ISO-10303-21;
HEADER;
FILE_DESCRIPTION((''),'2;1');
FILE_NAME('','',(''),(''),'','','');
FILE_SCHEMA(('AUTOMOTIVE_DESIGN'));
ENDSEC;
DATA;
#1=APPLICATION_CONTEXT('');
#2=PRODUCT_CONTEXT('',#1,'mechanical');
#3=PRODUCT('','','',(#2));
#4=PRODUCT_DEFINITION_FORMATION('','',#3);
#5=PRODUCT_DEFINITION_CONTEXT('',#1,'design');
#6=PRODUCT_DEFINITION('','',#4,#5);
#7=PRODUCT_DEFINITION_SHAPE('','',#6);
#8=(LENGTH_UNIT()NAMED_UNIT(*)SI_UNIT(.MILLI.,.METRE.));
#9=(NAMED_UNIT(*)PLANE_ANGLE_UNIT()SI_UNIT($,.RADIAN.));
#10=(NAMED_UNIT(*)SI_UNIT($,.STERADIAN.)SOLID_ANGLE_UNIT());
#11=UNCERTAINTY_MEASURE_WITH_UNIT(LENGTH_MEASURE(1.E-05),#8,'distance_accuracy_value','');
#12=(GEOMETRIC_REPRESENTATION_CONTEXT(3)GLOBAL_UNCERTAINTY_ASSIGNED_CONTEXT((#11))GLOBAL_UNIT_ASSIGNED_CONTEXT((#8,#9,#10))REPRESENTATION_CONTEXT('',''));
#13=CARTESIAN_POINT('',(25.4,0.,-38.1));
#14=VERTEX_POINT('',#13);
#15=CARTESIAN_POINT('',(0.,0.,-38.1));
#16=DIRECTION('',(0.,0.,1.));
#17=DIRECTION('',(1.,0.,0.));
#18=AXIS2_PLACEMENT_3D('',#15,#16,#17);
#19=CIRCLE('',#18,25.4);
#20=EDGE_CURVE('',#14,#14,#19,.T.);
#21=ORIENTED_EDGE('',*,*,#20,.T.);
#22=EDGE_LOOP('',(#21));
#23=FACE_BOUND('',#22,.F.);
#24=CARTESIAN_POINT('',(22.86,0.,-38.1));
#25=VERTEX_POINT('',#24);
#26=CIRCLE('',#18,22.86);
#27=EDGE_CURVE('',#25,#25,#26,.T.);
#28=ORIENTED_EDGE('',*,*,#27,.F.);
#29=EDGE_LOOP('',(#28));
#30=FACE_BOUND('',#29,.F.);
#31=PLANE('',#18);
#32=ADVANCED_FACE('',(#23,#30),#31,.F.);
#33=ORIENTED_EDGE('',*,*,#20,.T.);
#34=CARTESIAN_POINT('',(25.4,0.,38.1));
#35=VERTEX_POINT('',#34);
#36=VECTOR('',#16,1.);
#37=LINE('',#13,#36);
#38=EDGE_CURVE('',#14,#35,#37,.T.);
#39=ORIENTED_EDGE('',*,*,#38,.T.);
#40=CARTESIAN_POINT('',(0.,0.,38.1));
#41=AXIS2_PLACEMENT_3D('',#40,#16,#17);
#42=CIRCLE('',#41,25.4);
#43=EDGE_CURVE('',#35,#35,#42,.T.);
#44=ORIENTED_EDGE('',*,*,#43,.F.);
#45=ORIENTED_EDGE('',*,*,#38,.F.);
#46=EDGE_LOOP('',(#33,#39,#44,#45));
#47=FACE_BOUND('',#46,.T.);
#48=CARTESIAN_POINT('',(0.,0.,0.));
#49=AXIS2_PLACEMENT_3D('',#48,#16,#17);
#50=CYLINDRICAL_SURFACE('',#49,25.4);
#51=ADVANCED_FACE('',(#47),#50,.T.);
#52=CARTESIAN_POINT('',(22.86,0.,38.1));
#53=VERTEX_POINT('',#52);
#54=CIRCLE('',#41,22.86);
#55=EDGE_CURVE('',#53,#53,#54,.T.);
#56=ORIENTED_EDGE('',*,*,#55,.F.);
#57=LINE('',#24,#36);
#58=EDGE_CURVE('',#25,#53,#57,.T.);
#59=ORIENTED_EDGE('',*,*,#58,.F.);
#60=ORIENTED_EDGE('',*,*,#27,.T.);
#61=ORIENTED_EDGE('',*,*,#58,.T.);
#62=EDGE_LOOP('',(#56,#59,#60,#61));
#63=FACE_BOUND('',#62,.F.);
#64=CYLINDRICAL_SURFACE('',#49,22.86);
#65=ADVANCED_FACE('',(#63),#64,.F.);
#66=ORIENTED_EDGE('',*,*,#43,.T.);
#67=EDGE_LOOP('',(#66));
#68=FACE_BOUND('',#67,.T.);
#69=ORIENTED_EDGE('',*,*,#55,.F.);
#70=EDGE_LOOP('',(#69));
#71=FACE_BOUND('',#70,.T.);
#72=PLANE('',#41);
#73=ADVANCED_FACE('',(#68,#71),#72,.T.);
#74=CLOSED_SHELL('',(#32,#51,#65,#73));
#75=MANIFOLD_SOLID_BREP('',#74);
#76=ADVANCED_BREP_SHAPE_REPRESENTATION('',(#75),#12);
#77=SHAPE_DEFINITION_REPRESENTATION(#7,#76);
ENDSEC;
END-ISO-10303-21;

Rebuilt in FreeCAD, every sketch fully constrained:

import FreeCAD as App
import Part
import Sketcher
from FreeCAD import Vector
Q = App.Units.Quantity


def faces_at(feature, points):
    """Names of the faces that lie closest to the given points."""
    faces = feature.Shape.Faces
    near = lambda p: min(range(len(faces)), key=lambda i: faces[i].distToShape(Part.Vertex(*p))[0])
    return sorted({f"Face{near(p) + 1}" for p in points})

doc = App.newDocument("Part")
body = doc.addObject("PartDesign::Body", "Body")

sketch1 = body.newObject("Sketcher::SketchObject", "Sketch")
sketch1.AttachmentSupport = (doc.getObject("XY_Plane"), [""])
sketch1.MapMode = "FlatFace"
sketch1.addGeometry(Part.Circle(Vector(0, 0, 0), Vector(0, 0, 1), 25), False)
sketch1.addConstraint([
    Sketcher.Constraint("Coincident", 0, 3, -1, 1),
    Sketcher.Constraint("Diameter", 0, Q("2 in")),
])
pad1 = body.newObject("PartDesign::Pad", "Pad")
pad1.Profile = sketch1
pad1.Length = Q("3 in")
pad1.Midplane = True
doc.recompute()

thickness = body.newObject("PartDesign::Thickness", "Thickness")
thickness.Base = (pad1, faces_at(pad1, [(0, 0, 38.1), (0, 0, -38.1)]))
thickness.Value = Q("0.1 in")
thickness.Reversed = True
thickness.Join = "Arc"

doc.recompute()
